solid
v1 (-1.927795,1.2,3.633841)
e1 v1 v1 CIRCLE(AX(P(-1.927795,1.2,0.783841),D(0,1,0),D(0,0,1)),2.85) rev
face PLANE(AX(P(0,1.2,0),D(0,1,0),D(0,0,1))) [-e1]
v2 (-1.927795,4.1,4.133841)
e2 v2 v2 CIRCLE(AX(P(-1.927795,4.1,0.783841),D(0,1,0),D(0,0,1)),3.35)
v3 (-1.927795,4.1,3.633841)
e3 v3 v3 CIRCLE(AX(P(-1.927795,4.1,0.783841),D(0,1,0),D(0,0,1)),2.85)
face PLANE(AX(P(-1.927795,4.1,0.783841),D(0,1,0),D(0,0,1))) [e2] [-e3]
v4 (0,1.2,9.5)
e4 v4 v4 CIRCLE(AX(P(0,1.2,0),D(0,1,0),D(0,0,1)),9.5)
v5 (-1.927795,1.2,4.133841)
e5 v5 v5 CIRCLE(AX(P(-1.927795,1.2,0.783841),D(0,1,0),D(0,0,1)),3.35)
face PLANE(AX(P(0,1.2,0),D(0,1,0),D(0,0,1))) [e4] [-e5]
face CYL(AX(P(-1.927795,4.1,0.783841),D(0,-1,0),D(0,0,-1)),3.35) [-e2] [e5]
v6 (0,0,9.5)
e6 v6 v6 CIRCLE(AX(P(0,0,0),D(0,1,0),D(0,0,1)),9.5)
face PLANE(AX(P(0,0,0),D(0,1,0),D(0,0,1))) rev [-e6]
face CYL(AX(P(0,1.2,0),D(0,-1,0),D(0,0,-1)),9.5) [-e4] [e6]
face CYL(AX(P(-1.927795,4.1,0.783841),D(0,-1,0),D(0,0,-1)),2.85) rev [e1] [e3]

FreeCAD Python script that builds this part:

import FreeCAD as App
import Part
import Sketcher

V = App.Vector

doc = App.newDocument("Part")
params = doc.addObject("Spreadsheet::Sheet", "Params")
for row, (alias, value) in enumerate([
    ("sketch1_diameter", "19 mm"),
    ("pad1_length", "1.2 mm"),
    ("sketch2_diameter", "6.7 mm"),
    ("sketch2_diameter2", "5.7 mm"),
    ("pad2_length", "2.9 mm"),
], start=1):
    params.set(f"A{row}", alias)
    params.set(f"B{row}", "=" + value)
    params.setAlias(f"B{row}", alias)

body = doc.addObject("PartDesign::Body", "Body")

# Sketch on XZ plane
sketch1 = doc.addObject("Sketcher::SketchObject", "Sketch")
body.addObject(sketch1)
sketch1.AttachmentSupport = (doc.XZ_Plane, [""])
sketch1.MapMode = "FlatFace"
sketch1.addGeometry(Part.Circle(V(0, 0, 0), V(0, 0, 1), 10), False)
sketch1.addConstraint(Sketcher.Constraint("Coincident", 0, 3, -1, 1))
sketch1.addConstraint(Sketcher.Constraint("Diameter", 0, 19.0))
sketch1.setExpression("Constraints[1]", "Params.sketch1_diameter")
pad1 = doc.addObject("PartDesign::Pad", "Pad")
body.addObject(pad1)
pad1.Profile = sketch1
pad1.setExpression("Length", "Params.pad1_length")
pad1.Reversed = True

# Sketch on XZ plane
sketch2 = doc.addObject("Sketcher::SketchObject", "Sketch001")
body.addObject(sketch2)
sketch2.AttachmentSupport = (doc.XZ_Plane, [""])
sketch2.MapMode = "FlatFace"
sketch2.AttachmentOffset = App.Placement(V(0, 0, -1.2), App.Rotation())
sketch2.addGeometry(Part.Circle(V(-1.9, 0.8, 0), V(0, 0, 1), 3.4), False)
sketch2.addGeometry(Part.Circle(V(-1.9, 0.8, 0), V(0, 0, 1), 2.9), False)
sketch2.addConstraint(Sketcher.Constraint("Coincident", 1, 3, 0, 3))
sketch2.addConstraint(Sketcher.Constraint("Diameter", 0, 6.7))
sketch2.addConstraint(Sketcher.Constraint("Diameter", 1, 5.7))
sketch2.addConstraint(Sketcher.Constraint("DistanceY", -1, 1, 0, 3, 0.783841))
sketch2.addConstraint(Sketcher.Constraint("DistanceX", 0, 3, -1, 1, 1.927795))
sketch2.setExpression("Constraints[1]", "Params.sketch2_diameter")
sketch2.setExpression("Constraints[2]", "Params.sketch2_diameter2")
pad2 = doc.addObject("PartDesign::Pad", "Pad001")
body.addObject(pad2)
pad2.Profile = sketch2
pad2.setExpression("Length", "Params.pad2_length")
pad2.Reversed = True

doc.recompute()
